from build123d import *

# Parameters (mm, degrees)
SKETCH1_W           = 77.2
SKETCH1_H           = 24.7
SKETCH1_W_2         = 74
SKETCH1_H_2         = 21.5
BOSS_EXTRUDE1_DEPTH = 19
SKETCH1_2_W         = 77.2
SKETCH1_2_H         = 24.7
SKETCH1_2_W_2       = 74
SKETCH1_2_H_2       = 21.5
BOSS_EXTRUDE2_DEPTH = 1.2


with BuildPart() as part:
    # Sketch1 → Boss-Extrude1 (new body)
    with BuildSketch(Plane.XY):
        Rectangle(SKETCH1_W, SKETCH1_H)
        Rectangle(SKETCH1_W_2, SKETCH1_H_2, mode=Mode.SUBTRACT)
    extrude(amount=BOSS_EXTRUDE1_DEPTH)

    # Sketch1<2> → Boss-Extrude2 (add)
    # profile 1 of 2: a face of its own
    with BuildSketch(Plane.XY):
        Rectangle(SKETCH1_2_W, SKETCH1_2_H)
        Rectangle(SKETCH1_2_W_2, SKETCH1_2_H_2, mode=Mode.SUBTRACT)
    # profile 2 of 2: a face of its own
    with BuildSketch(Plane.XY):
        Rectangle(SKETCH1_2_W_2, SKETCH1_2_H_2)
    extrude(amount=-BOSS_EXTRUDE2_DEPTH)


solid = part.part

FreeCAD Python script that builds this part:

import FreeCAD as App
import Part
import Sketcher

V = App.Vector
Q = App.Units.Quantity


def add_polygon(sketch, points):
    """Adds a closed chain of lines whose ends are joined by coincident constraints."""
    first, n = sketch.GeometryCount, len(points)
    for a, b in zip(points, points[1:] + points[:1]):
        sketch.addGeometry(Part.LineSegment(App.Vector(*a, 0), App.Vector(*b, 0)), False)
    for i in range(n):
        sketch.addConstraint(Sketcher.Constraint("Coincident", first + i, 2, first + (i + 1) % n, 1))

doc = App.newDocument("Part")
body = doc.addObject("PartDesign::Body", "Body")

# Sketch on XY plane
sketch1 = body.newObject("Sketcher::SketchObject", "Sketch")
sketch1.AttachmentSupport = (doc.getObject("XY_Plane"), [""])
sketch1.MapMode = "FlatFace"
add_polygon(sketch1, [(-39, 12), (-39, -12), (39, -12), (39, 12)])  # lines 0-3
add_polygon(sketch1, [(37, -11), (-37, -11), (-37, 11), (37, 11)])  # lines 4-7
sketch1.addConstraint(Sketcher.Constraint("Vertical", 0))
sketch1.addConstraint(Sketcher.Constraint("Horizontal", 1))
sketch1.addConstraint(Sketcher.Constraint("Vertical", 2))
sketch1.addConstraint(Sketcher.Constraint("Horizontal", 3))
sketch1.addConstraint(Sketcher.Constraint("Horizontal", 4))
sketch1.addConstraint(Sketcher.Constraint("Vertical", 5))
sketch1.addConstraint(Sketcher.Constraint("Horizontal", 6))
sketch1.addConstraint(Sketcher.Constraint("Vertical", 7))
sketch1.addConstraint(Sketcher.Constraint("Symmetric", 0, 2, 2, 2, -1, 1))
sketch1.addConstraint(Sketcher.Constraint("Symmetric", 4, 2, 6, 2, -1, 1))
sketch1.addConstraint(Sketcher.Constraint("DistanceX", 4, 2, 4, 1, Q("74 mm")))
sketch1.addConstraint(Sketcher.Constraint("DistanceX", 1, 1, 1, 2, Q("77.2 mm")))
sketch1.addConstraint(Sketcher.Constraint("DistanceY", 0, 2, 0, 1, Q("24.7 mm")))
sketch1.addConstraint(Sketcher.Constraint("DistanceY", 5, 1, 5, 2, Q("21.5 mm")))
pad1 = body.newObject("PartDesign::Pad", "Pad")
pad1.Profile = sketch1
pad1.Length = 19

# Sketch on XY plane
sketch2 = body.newObject("Sketcher::SketchObject", "Sketch001")
sketch2.AttachmentSupport = (doc.getObject("XY_Plane"), [""])
sketch2.MapMode = "FlatFace"
add_polygon(sketch2, [(-39, 12), (-39, -12), (39, -12), (39, 12)])  # lines 0-3
sketch2.addConstraint(Sketcher.Constraint("Vertical", 0))
sketch2.addConstraint(Sketcher.Constraint("Horizontal", 1))
sketch2.addConstraint(Sketcher.Constraint("Vertical", 2))
sketch2.addConstraint(Sketcher.Constraint("Horizontal", 3))
sketch2.addConstraint(Sketcher.Constraint("Symmetric", 0, 2, 2, 2, -1, 1))
sketch2.addConstraint(Sketcher.Constraint("DistanceX", 1, 1, 1, 2, Q("77.2 mm")))
sketch2.addConstraint(Sketcher.Constraint("DistanceY", 0, 2, 0, 1, Q("24.7 mm")))
pad2 = body.newObject("PartDesign::Pad", "Pad001")
pad2.Profile = sketch2
pad2.Length = 1.2
pad2.Reversed = True

doc.recompute()
